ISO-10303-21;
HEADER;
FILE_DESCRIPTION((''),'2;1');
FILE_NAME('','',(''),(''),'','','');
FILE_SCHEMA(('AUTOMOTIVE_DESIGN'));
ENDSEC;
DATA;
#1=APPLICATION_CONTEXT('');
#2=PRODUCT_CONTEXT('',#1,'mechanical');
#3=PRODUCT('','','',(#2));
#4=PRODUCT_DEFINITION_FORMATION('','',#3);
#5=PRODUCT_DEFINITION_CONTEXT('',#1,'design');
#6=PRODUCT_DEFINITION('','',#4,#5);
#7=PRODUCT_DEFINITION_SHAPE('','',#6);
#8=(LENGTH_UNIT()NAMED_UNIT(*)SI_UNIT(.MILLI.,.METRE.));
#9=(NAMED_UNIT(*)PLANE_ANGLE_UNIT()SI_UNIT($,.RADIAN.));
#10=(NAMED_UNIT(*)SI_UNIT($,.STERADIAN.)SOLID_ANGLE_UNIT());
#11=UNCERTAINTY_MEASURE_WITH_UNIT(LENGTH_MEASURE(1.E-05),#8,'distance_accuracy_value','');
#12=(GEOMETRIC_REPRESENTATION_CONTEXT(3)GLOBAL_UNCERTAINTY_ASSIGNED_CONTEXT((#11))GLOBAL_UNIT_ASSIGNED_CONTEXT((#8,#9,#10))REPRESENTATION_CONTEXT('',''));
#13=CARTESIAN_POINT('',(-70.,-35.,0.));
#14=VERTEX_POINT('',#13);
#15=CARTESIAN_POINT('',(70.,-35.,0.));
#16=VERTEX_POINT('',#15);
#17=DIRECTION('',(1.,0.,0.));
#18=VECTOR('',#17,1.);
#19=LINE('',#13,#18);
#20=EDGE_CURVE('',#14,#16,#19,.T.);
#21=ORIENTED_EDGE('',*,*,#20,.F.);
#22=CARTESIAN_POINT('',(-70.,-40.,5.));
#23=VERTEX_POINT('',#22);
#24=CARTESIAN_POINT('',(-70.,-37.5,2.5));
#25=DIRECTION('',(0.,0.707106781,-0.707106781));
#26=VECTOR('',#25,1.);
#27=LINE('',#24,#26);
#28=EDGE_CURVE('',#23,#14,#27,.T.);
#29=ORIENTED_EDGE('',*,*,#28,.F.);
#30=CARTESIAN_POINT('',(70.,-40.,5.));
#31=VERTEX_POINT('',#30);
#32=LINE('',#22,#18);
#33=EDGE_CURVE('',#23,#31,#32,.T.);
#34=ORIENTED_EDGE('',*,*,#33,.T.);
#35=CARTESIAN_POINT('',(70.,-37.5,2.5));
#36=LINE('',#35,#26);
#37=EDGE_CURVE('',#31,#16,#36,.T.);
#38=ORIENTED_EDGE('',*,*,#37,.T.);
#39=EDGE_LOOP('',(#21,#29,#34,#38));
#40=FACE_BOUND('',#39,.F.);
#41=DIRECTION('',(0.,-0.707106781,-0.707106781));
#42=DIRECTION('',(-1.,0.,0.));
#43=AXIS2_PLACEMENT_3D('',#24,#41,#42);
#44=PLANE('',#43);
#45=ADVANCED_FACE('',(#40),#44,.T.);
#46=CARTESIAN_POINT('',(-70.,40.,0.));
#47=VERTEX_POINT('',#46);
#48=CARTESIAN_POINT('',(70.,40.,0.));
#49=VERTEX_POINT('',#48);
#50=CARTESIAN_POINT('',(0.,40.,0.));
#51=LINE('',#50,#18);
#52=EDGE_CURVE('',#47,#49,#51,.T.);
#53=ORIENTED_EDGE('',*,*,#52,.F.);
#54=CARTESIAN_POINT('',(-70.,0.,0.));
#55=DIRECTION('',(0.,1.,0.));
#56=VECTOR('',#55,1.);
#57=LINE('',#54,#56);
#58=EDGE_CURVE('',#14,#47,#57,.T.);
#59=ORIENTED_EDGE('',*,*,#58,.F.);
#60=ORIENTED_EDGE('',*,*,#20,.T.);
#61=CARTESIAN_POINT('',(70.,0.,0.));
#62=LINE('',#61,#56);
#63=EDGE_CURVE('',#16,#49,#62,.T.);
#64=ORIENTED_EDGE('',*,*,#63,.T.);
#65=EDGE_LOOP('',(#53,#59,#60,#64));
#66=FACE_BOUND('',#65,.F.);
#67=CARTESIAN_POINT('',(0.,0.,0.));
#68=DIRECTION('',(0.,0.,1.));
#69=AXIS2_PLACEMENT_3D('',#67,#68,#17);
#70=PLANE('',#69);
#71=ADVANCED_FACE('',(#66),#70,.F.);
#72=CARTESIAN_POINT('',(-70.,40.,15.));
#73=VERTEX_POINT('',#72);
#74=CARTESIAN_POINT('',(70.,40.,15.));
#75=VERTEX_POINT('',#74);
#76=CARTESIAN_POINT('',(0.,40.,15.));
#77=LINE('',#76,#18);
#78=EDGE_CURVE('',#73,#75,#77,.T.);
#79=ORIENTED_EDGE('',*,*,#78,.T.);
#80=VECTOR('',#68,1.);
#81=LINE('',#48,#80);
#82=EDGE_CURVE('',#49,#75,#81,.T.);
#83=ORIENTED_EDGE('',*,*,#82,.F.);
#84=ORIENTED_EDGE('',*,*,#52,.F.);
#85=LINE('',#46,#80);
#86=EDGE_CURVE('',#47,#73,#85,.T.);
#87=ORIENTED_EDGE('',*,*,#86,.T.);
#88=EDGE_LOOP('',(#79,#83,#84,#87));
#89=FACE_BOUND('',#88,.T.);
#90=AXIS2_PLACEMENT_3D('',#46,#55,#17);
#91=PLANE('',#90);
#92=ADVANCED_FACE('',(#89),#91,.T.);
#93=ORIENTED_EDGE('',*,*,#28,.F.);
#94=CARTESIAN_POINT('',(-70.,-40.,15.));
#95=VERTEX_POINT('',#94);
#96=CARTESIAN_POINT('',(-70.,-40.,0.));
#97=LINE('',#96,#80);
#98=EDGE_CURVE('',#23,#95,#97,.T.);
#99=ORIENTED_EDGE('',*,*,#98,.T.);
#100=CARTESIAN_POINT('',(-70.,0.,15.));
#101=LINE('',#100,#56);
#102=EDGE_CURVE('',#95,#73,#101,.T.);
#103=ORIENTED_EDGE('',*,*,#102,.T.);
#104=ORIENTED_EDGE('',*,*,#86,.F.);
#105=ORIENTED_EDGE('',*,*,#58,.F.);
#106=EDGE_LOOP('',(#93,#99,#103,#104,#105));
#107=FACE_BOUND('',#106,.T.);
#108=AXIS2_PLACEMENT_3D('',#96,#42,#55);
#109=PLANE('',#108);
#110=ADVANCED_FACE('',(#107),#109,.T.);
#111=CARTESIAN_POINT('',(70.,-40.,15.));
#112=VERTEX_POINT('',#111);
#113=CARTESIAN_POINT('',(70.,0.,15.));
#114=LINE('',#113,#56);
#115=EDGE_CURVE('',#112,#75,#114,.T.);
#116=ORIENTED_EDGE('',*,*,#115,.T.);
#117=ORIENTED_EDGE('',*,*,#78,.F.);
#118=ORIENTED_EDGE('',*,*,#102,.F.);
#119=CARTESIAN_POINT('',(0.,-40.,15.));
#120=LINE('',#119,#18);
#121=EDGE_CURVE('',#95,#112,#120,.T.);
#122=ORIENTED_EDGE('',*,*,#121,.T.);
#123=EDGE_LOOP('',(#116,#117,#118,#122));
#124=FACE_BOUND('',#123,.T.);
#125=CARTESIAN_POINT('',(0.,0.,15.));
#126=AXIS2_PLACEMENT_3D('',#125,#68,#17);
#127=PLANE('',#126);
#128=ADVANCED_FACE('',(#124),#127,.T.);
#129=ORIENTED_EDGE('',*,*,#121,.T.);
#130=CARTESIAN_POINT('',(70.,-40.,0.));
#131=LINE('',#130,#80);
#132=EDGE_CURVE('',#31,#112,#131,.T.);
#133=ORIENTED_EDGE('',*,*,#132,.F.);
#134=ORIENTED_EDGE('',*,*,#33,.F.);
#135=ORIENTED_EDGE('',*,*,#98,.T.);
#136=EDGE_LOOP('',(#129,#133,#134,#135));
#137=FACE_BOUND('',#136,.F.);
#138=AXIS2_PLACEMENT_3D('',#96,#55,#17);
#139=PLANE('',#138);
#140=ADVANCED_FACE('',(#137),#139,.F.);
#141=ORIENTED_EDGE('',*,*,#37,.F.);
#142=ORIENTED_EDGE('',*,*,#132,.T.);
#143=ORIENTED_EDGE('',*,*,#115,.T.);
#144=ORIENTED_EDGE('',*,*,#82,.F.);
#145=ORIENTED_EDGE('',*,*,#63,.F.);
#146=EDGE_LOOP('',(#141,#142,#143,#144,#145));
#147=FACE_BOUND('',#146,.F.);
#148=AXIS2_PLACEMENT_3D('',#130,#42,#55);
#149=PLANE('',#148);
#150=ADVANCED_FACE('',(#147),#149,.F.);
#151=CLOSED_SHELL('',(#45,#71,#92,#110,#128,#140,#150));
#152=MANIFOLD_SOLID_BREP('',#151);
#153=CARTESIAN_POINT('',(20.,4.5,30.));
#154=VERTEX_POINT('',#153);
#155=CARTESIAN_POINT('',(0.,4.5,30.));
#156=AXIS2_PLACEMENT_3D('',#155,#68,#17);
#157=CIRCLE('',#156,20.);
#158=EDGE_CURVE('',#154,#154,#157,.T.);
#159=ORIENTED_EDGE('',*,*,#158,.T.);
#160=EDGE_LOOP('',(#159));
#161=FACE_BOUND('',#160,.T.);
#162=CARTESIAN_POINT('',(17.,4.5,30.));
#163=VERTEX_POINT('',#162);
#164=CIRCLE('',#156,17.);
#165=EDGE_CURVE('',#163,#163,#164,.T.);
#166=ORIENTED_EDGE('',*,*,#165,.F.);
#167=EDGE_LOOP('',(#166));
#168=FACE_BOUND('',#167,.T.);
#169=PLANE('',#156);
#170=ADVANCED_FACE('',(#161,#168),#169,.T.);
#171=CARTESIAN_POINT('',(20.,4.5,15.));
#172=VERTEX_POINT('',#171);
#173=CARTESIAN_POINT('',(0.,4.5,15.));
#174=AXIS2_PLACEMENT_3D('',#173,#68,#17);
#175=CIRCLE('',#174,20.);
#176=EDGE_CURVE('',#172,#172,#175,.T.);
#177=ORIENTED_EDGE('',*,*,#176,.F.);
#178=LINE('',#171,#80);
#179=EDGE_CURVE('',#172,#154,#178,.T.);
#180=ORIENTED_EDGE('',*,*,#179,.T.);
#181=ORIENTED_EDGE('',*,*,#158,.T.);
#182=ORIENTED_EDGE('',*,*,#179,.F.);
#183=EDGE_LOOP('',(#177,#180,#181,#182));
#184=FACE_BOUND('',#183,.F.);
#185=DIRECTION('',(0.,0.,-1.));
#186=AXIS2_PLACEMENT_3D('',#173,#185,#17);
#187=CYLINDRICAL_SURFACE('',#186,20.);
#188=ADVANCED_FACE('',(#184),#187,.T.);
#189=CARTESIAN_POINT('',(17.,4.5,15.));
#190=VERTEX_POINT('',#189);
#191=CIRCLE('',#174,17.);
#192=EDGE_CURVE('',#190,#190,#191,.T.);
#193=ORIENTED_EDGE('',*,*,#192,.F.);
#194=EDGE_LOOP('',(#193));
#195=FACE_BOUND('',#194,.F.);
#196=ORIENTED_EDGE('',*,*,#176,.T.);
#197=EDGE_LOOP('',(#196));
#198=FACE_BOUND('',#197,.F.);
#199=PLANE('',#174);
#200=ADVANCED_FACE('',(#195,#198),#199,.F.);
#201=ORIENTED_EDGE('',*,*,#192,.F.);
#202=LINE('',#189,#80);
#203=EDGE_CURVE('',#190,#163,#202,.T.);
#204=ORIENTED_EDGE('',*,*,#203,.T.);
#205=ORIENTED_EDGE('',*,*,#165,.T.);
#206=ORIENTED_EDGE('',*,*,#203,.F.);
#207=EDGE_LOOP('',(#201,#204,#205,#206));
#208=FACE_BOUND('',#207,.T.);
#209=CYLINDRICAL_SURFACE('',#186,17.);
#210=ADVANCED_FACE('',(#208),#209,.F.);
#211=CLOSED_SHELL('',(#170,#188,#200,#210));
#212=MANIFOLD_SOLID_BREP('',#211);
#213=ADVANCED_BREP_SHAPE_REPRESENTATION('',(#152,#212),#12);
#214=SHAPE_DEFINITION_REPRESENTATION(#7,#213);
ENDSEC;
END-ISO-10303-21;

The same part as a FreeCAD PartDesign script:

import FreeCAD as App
import Part
import Sketcher


def edges_at(feature, points):
    """Names of the edges that pass closest to the given points."""
    edges = feature.Shape.Edges
    near = lambda p: min(range(len(edges)), key=lambda i: edges[i].distToShape(Part.Vertex(*p))[0])
    return sorted({f"Edge{near(p) + 1}" for p in points})


def add_polygon(sketch, points):
    """Adds a closed chain of lines whose ends are joined by coincident constraints."""
    first, n = sketch.GeometryCount, len(points)
    for a, b in zip(points, points[1:] + points[:1]):
        sketch.addGeometry(Part.LineSegment(App.Vector(*a, 0), App.Vector(*b, 0)), False)
    for i in range(n):
        sketch.addConstraint(Sketcher.Constraint("Coincident", first + i, 2, first + (i + 1) % n, 1))

doc = App.newDocument("Part")
body = doc.addObject("PartDesign::Body", "Body")

sketch1 = body.newObject("Sketcher::SketchObject", "Sketch")
sketch1.AttachmentSupport = (doc.getObject("XY_Plane"), [""])
sketch1.MapMode = "FlatFace"
add_polygon(sketch1, [(-70, 40), (-70, -40), (70, -40), (70, 40)])
sketch1.addConstraint([
    Sketcher.Constraint("Vertical", 0),
    Sketcher.Constraint("Horizontal", 1),
    Sketcher.Constraint("Vertical", 2),
    Sketcher.Constraint("Horizontal", 3),
    Sketcher.Constraint("Symmetric", 0, 2, 2, 2, -1, 1),
    Sketcher.Constraint("DistanceX", 1, 1, 1, 2, 140.0),
    Sketcher.Constraint("DistanceY", 0, 2, 0, 1, 80.0),
])
pad1 = body.newObject("PartDesign::Pad", "Pad")
pad1.Profile = sketch1
pad1.Length = 15
doc.recompute()

chamfer = body.newObject("PartDesign::Chamfer", "Chamfer")
chamfer.Base = (pad1, edges_at(pad1, [(0, -40, 0)]))
chamfer.Size = 5
body2 = doc.addObject("PartDesign::Body", "Body001")

sketch2 = body2.newObject("Sketcher::SketchObject", "Sketch001")
sketch2.AttachmentSupport = (doc.getObject("XY_Plane001"), [""])
sketch2.MapMode = "FlatFace"
sketch2.AttachmentOffset = App.Placement(App.Vector(0, 0, 15), App.Rotation())
sketch2.addGeometry([
    Part.Circle(App.Vector(0, 4, 0), App.Vector(0, 0, 1), 20),
    Part.Circle(App.Vector(0, 4, 0), App.Vector(0, 0, 1), 17),
], False)
sketch2.addConstraint([
    Sketcher.Constraint("Coincident", 1, 3, 0, 3),
    Sketcher.Constraint("PointOnObject", 0, 3, -2),
    Sketcher.Constraint("Diameter", 0, 40.0),
    Sketcher.Constraint("Diameter", 1, 34.0),
    Sketcher.Constraint("DistanceY", -1, 1, 0, 3, 4.5),
])
pad2 = body2.newObject("PartDesign::Pad", "Pad001")
pad2.Profile = sketch2
pad2.Length = 15

doc.recompute()
